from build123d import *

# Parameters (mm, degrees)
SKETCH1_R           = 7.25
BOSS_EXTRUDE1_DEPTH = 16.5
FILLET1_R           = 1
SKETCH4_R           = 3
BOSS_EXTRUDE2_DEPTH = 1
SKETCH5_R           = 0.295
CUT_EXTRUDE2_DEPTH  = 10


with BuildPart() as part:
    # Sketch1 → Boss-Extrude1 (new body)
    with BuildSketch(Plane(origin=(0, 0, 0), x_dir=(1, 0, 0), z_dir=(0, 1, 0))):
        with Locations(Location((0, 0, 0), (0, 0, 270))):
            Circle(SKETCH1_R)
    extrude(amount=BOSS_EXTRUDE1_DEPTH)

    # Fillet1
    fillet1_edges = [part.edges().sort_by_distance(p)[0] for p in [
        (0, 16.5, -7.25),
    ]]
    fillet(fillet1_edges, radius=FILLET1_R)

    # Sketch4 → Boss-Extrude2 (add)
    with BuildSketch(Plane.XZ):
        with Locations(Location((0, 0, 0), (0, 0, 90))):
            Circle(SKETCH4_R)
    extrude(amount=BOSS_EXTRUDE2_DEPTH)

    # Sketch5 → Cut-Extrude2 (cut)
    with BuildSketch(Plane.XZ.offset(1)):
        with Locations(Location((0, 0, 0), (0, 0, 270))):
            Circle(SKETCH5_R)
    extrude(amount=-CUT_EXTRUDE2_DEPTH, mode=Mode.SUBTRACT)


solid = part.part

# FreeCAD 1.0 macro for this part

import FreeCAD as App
import Part
import Sketcher
from FreeCAD import Vector
Q = App.Units.Quantity


def edges_at(feature, points):
    """Names of the edges that pass closest to the given points."""
    edges = feature.Shape.Edges
    near = lambda p: min(range(len(edges)), key=lambda i: edges[i].distToShape(Part.Vertex(*p))[0])
    return sorted({f"Edge{near(p) + 1}" for p in points})

doc = App.newDocument("Part")
body = doc.addObject("PartDesign::Body", "Body")

sketch1 = doc.addObject("Sketcher::SketchObject", "Sketch")
body.addObject(sketch1)
sketch1.AttachmentSupport = (doc.XZ_Plane, [""])
sketch1.MapMode = "FlatFace"
sketch1.addGeometry(Part.Circle(Vector(0, 0, 0), Vector(0, 0, 1), 7), False)
sketch1.addConstraint([
    Sketcher.Constraint("Coincident", 0, 3, -1, 1),
    Sketcher.Constraint("Diameter", 0, Q("14.5 mm")),
])
pad1 = doc.addObject("PartDesign::Pad", "Pad")
body.addObject(pad1)
pad1.Profile = sketch1
pad1.Length = 16.5
pad1.Reversed = True
doc.recompute()

fillet = doc.addObject("PartDesign::Fillet", "Fillet")
body.addObject(fillet)
fillet.Base = (pad1, edges_at(pad1, [(0, 16.5, -7.25)]))
fillet.Radius = 1

sketch2 = doc.addObject("Sketcher::SketchObject", "Sketch001")
body.addObject(sketch2)
sketch2.AttachmentSupport = (doc.XZ_Plane, [""])
sketch2.MapMode = "FlatFace"
sketch2.addGeometry(Part.Circle(Vector(0, 0, 0), Vector(0, 0, 1), 3), False)
sketch2.addConstraint([
    Sketcher.Constraint("Coincident", 0, 3, -1, 1),
    Sketcher.Constraint("Diameter", 0, Q("6 mm")),
])
pad2 = doc.addObject("PartDesign::Pad", "Pad001")
body.addObject(pad2)
pad2.Profile = sketch2
pad2.Length = 1

sketch3 = doc.addObject("Sketcher::SketchObject", "Sketch002")
body.addObject(sketch3)
sketch3.AttachmentSupport = (doc.XZ_Plane, [""])
sketch3.MapMode = "FlatFace"
sketch3.AttachmentOffset = App.Placement(Vector(0, 0, 1), App.Rotation())
sketch3.addGeometry(Part.Circle(Vector(0, 0, 0), Vector(0, 0, 1), 0.29), False)
sketch3.addConstraint([
    Sketcher.Constraint("Coincident", 0, 3, -1, 1),
    Sketcher.Constraint("Diameter", 0, Q("0.59 mm")),
])
pocket1 = doc.addObject("PartDesign::Pocket", "Pocket")
body.addObject(pocket1)
pocket1.Profile = sketch3
pocket1.Length = 10

doc.recompute()
